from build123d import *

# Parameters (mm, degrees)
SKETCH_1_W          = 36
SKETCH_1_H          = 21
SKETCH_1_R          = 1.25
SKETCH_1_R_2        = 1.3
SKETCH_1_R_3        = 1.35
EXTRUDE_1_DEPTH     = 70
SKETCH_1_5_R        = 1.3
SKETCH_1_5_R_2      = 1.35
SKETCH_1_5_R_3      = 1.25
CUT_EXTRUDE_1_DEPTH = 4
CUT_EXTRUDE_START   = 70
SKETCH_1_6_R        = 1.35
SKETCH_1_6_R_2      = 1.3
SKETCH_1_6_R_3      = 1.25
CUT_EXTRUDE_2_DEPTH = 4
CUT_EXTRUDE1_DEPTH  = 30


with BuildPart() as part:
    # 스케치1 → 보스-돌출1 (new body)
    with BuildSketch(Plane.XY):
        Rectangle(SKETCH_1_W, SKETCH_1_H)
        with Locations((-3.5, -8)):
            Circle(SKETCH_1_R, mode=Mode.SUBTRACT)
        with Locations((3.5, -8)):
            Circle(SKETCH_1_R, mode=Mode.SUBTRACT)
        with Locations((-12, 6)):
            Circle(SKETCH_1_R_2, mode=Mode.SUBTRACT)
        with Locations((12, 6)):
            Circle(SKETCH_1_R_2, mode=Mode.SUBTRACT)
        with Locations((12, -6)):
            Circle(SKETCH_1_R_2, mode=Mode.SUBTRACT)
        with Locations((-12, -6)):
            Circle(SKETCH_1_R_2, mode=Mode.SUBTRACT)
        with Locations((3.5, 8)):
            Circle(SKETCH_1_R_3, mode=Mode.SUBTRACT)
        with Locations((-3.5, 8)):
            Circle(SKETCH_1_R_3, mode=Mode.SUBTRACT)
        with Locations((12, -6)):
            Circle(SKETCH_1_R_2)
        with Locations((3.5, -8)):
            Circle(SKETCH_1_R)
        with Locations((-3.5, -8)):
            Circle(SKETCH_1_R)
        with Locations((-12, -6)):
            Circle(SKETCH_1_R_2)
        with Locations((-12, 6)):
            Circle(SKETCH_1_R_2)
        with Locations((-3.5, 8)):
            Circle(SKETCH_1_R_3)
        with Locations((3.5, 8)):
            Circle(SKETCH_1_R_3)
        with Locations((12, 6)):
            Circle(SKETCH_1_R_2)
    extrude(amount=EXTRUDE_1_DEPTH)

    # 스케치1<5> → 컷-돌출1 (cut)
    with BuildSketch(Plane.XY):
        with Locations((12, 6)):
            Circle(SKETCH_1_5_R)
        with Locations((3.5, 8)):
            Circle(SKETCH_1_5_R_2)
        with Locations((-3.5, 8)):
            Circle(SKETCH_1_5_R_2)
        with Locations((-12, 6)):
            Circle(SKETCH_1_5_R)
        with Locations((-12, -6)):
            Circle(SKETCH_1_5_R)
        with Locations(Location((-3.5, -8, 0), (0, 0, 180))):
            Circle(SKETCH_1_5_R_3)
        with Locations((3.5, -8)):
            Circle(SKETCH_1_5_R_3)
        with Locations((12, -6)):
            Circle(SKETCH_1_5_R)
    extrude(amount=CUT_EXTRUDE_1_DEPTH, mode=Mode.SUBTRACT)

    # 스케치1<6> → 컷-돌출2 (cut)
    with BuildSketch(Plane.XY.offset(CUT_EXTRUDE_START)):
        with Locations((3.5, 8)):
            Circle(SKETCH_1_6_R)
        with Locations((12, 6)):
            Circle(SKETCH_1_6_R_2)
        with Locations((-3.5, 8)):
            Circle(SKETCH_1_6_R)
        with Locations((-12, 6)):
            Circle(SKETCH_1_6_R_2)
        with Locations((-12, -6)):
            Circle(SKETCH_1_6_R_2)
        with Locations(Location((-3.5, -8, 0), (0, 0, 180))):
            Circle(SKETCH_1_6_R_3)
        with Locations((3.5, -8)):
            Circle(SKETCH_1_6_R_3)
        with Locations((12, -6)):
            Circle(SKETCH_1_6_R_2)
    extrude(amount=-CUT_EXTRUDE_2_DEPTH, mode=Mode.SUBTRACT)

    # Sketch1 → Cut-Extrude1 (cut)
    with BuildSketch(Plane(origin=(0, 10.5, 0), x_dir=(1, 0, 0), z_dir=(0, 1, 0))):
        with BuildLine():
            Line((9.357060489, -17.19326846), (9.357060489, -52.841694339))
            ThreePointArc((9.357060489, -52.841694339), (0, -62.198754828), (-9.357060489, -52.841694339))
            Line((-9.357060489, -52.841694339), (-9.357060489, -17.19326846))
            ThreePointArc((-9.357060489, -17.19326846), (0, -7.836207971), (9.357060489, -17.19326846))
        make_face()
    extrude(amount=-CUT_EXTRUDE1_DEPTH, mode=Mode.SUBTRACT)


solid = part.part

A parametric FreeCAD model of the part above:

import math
import FreeCAD as App
import Part
import Sketcher

V = App.Vector


def add_polygon(sketch, points):
    """Adds a closed chain of lines whose ends are joined by coincident constraints."""
    first, n = sketch.GeometryCount, len(points)
    for a, b in zip(points, points[1:] + points[:1]):
        sketch.addGeometry(Part.LineSegment(App.Vector(*a, 0), App.Vector(*b, 0)), False)
    for i in range(n):
        sketch.addConstraint(Sketcher.Constraint("Coincident", first + i, 2, first + (i + 1) % n, 1))

doc = App.newDocument("Part")
params = doc.addObject("Spreadsheet::Sheet", "Params")
for row, (alias, value) in enumerate([
    ("sketch1_width", "36 mm"),
    ("sketch1_height", "21 mm"),
    ("pad1_length", "70 mm"),
    ("sketch2_diameter", "2.6 mm"),
    ("sketch2_diameter2", "2.7 mm"),
    ("sketch2_diameter3", "2.5 mm"),
    ("pocket1_length", "4 mm"),
    ("sketch3_diameter", "2.7 mm"),
    ("sketch3_diameter2", "2.6 mm"),
    ("sketch3_diameter3", "2.5 mm"),
    ("pocket2_length", "4 mm"),
    ("pocket3_length", "30 mm"),
], start=1):
    params.set(f"A{row}", alias)
    params.set(f"B{row}", "=" + value)
    params.setAlias(f"B{row}", alias)

body = doc.addObject("PartDesign::Body", "Body")

# Sketch on XY plane
sketch1 = body.newObject("Sketcher::SketchObject", "Sketch")
sketch1.AttachmentSupport = (doc.getObject("XY_Plane"), [""])
sketch1.MapMode = "FlatFace"
add_polygon(sketch1, [(-18, 10), (-18, -10), (18, -10), (18, 10)])  # lines 0-3
sketch1.addConstraint([
    Sketcher.Constraint("Vertical", 0),
    Sketcher.Constraint("Horizontal", 1),
    Sketcher.Constraint("Vertical", 2),
    Sketcher.Constraint("Horizontal", 3),
    Sketcher.Constraint("Symmetric", 0, 2, 2, 2, -1, 1),
    Sketcher.Constraint("DistanceX", 1, 1, 1, 2, 36.0),
    Sketcher.Constraint("DistanceY", 0, 2, 0, 1, 21.0),
])
sketch1.setExpression("Constraints[9]", "Params.sketch1_width")
sketch1.setExpression("Constraints[10]", "Params.sketch1_height")
pad1 = body.newObject("PartDesign::Pad", "Pad")
pad1.Profile = sketch1
pad1.setExpression("Length", "Params.pad1_length")

# Sketch on XY plane
sketch2 = body.newObject("Sketcher::SketchObject", "Sketch001")
sketch2.AttachmentSupport = (doc.getObject("XY_Plane"), [""])
sketch2.MapMode = "FlatFace"
sketch2.addGeometry([
    Part.Circle(V(12, 6, 0), V(0, 0, 1), 1.3),  # 0
    Part.Circle(V(3.5, 8, 0), V(0, 0, 1), 1.4),  # 1
    Part.Circle(V(-3.5, 8, 0), V(0, 0, 1), 1.4),  # 2
    Part.Circle(V(-12, 6, 0), V(0, 0, 1), 1.3),  # 3
    Part.Circle(V(-12, -6, 0), V(0, 0, 1), 1.3),  # 4
    Part.Circle(V(-3.5, -8, 0), V(0, 0, 1), 1.2),  # 5
    Part.Circle(V(3.5, -8, 0), V(0, 0, 1), 1.2),  # 6
    Part.Circle(V(12, -6, 0), V(0, 0, 1), 1.3),  # 7
], False)
sketch2.addConstraint([
    Sketcher.Constraint("Equal", 1, 2),
    Sketcher.Constraint("Equal", 0, 3),
    Sketcher.Constraint("Equal", 3, 4),
    Sketcher.Constraint("Equal", 5, 6),
    Sketcher.Constraint("Equal", 4, 7),
    Sketcher.Constraint("Symmetric", 0, 3, 4, 3, -1, 1),
    Sketcher.Constraint("Symmetric", 1, 3, 5, 3, -1, 1),
    Sketcher.Constraint("Symmetric", 2, 3, 6, 3, -1, 1),
    Sketcher.Constraint("Symmetric", 3, 3, 7, 3, -1, 1),
    Sketcher.Constraint("Symmetric", 1, 3, 2, 3, -2),
    Sketcher.Constraint("Symmetric", 0, 3, 3, 3, -2),
    Sketcher.Constraint("Diameter", 0, 2.6),
    Sketcher.Constraint("Diameter", 1, 2.7),
    Sketcher.Constraint("Diameter", 5, 2.5),
    Sketcher.Constraint("DistanceX", -1, 1, 0, 3, 12.0),
    Sketcher.Constraint("DistanceY", -1, 1, 0, 3, 6.0),
    Sketcher.Constraint("DistanceY", -1, 1, 1, 3, 8.0),
    Sketcher.Constraint("DistanceX", 2, 3, 1, 3, 7.0),
])
sketch2.setExpression("Constraints[11]", "Params.sketch2_diameter")
sketch2.setExpression("Constraints[12]", "Params.sketch2_diameter2")
sketch2.setExpression("Constraints[13]", "Params.sketch2_diameter3")
pocket1 = body.newObject("PartDesign::Pocket", "Pocket")
pocket1.Profile = sketch2
pocket1.setExpression("Length", "Params.pocket1_length")
pocket1.Reversed = True

# Sketch on XY plane
sketch3 = body.newObject("Sketcher::SketchObject", "Sketch002")
sketch3.AttachmentSupport = (doc.getObject("XY_Plane"), [""])
sketch3.MapMode = "FlatFace"
sketch3.AttachmentOffset = App.Placement(V(0, 0, 70), App.Rotation())
sketch3.addGeometry([
    Part.Circle(V(3.5, 8, 0), V(0, 0, 1), 1.4),  # 0
    Part.Circle(V(12, 6, 0), V(0, 0, 1), 1.3),  # 1
    Part.Circle(V(-3.5, 8, 0), V(0, 0, 1), 1.4),  # 2
    Part.Circle(V(-12, 6, 0), V(0, 0, 1), 1.3),  # 3
    Part.Circle(V(-12, -6, 0), V(0, 0, 1), 1.3),  # 4
    Part.Circle(V(-3.5, -8, 0), V(0, 0, 1), 1.2),  # 5
    Part.Circle(V(3.5, -8, 0), V(0, 0, 1), 1.2),  # 6
    Part.Circle(V(12, -6, 0), V(0, 0, 1), 1.3),  # 7
], False)
sketch3.addConstraint([
    Sketcher.Constraint("Equal", 0, 2),
    Sketcher.Constraint("Equal", 1, 3),
    Sketcher.Constraint("Equal", 3, 4),
    Sketcher.Constraint("Equal", 5, 6),
    Sketcher.Constraint("Equal", 4, 7),
    Sketcher.Constraint("Symmetric", 1, 3, 4, 3, -1, 1),
    Sketcher.Constraint("Symmetric", 0, 3, 5, 3, -1, 1),
    Sketcher.Constraint("Symmetric", 2, 3, 6, 3, -1, 1),
    Sketcher.Constraint("Symmetric", 3, 3, 7, 3, -1, 1),
    Sketcher.Constraint("Symmetric", 0, 3, 2, 3, -2),
    Sketcher.Constraint("Symmetric", 1, 3, 3, 3, -2),
    Sketcher.Constraint("Diameter", 0, 2.7),
    Sketcher.Constraint("Diameter", 1, 2.6),
    Sketcher.Constraint("Diameter", 5, 2.5),
    Sketcher.Constraint("DistanceY", -1, 1, 0, 3, 8.0),
    Sketcher.Constraint("DistanceX", -1, 1, 1, 3, 12.0),
    Sketcher.Constraint("DistanceY", -1, 1, 1, 3, 6.0),
    Sketcher.Constraint("DistanceX", 2, 3, 0, 3, 7.0),
])
sketch3.setExpression("Constraints[11]", "Params.sketch3_diameter")
sketch3.setExpression("Constraints[12]", "Params.sketch3_diameter2")
sketch3.setExpression("Constraints[13]", "Params.sketch3_diameter3")
pocket2 = body.newObject("PartDesign::Pocket", "Pocket001")
pocket2.Profile = sketch3
pocket2.setExpression("Length", "Params.pocket2_length")

# Sketch on XZ plane
sketch4 = body.newObject("Sketcher::SketchObject", "Sketch003")
sketch4.AttachmentSupport = (doc.getObject("XZ_Plane"), [""])
sketch4.MapMode = "FlatFace"
sketch4.AttachmentOffset = App.Placement(V(0, 0, -10.5), App.Rotation())
sketch4.addGeometry([
    Part.LineSegment(V(9, 53, 0), V(9, 17, 0)),
    Part.ArcOfCircle(Part.Circle(V(0, 17, 0), V(0, 0, 1), 9), math.radians(180), math.radians(360)),
    Part.LineSegment(V(-9, 17, 0), V(-9, 53, 0)),
    Part.ArcOfCircle(Part.Circle(V(0, 53, 0), V(0, 0, 1), 9), math.radians(0), math.radians(180)),
], False)
sketch4.addConstraint([
    Sketcher.Constraint("Tangent", 0, 2, 1, 2),
    Sketcher.Constraint("Tangent", 1, 1, 2, 1),
    Sketcher.Constraint("Tangent", 2, 2, 3, 2),
    Sketcher.Constraint("Tangent", 3, 1, 0, 1),
    Sketcher.Constraint("Vertical", 0),
    Sketcher.Constraint("Vertical", 2),
    Sketcher.Constraint("PointOnObject", 1, 3, -2),
    Sketcher.Constraint("Radius", 1, 9.35706),
    Sketcher.Constraint("DistanceY", 0, 2, 0, 1, 35.648426),
    Sketcher.Constraint("DistanceY", -1, 1, 1, 3, 17.193268),
])
pocket3 = body.newObject("PartDesign::Pocket", "Pocket002")
pocket3.Profile = sketch4
pocket3.setExpression("Length", "Params.pocket3_length")
pocket3.Reversed = True

doc.recompute()
